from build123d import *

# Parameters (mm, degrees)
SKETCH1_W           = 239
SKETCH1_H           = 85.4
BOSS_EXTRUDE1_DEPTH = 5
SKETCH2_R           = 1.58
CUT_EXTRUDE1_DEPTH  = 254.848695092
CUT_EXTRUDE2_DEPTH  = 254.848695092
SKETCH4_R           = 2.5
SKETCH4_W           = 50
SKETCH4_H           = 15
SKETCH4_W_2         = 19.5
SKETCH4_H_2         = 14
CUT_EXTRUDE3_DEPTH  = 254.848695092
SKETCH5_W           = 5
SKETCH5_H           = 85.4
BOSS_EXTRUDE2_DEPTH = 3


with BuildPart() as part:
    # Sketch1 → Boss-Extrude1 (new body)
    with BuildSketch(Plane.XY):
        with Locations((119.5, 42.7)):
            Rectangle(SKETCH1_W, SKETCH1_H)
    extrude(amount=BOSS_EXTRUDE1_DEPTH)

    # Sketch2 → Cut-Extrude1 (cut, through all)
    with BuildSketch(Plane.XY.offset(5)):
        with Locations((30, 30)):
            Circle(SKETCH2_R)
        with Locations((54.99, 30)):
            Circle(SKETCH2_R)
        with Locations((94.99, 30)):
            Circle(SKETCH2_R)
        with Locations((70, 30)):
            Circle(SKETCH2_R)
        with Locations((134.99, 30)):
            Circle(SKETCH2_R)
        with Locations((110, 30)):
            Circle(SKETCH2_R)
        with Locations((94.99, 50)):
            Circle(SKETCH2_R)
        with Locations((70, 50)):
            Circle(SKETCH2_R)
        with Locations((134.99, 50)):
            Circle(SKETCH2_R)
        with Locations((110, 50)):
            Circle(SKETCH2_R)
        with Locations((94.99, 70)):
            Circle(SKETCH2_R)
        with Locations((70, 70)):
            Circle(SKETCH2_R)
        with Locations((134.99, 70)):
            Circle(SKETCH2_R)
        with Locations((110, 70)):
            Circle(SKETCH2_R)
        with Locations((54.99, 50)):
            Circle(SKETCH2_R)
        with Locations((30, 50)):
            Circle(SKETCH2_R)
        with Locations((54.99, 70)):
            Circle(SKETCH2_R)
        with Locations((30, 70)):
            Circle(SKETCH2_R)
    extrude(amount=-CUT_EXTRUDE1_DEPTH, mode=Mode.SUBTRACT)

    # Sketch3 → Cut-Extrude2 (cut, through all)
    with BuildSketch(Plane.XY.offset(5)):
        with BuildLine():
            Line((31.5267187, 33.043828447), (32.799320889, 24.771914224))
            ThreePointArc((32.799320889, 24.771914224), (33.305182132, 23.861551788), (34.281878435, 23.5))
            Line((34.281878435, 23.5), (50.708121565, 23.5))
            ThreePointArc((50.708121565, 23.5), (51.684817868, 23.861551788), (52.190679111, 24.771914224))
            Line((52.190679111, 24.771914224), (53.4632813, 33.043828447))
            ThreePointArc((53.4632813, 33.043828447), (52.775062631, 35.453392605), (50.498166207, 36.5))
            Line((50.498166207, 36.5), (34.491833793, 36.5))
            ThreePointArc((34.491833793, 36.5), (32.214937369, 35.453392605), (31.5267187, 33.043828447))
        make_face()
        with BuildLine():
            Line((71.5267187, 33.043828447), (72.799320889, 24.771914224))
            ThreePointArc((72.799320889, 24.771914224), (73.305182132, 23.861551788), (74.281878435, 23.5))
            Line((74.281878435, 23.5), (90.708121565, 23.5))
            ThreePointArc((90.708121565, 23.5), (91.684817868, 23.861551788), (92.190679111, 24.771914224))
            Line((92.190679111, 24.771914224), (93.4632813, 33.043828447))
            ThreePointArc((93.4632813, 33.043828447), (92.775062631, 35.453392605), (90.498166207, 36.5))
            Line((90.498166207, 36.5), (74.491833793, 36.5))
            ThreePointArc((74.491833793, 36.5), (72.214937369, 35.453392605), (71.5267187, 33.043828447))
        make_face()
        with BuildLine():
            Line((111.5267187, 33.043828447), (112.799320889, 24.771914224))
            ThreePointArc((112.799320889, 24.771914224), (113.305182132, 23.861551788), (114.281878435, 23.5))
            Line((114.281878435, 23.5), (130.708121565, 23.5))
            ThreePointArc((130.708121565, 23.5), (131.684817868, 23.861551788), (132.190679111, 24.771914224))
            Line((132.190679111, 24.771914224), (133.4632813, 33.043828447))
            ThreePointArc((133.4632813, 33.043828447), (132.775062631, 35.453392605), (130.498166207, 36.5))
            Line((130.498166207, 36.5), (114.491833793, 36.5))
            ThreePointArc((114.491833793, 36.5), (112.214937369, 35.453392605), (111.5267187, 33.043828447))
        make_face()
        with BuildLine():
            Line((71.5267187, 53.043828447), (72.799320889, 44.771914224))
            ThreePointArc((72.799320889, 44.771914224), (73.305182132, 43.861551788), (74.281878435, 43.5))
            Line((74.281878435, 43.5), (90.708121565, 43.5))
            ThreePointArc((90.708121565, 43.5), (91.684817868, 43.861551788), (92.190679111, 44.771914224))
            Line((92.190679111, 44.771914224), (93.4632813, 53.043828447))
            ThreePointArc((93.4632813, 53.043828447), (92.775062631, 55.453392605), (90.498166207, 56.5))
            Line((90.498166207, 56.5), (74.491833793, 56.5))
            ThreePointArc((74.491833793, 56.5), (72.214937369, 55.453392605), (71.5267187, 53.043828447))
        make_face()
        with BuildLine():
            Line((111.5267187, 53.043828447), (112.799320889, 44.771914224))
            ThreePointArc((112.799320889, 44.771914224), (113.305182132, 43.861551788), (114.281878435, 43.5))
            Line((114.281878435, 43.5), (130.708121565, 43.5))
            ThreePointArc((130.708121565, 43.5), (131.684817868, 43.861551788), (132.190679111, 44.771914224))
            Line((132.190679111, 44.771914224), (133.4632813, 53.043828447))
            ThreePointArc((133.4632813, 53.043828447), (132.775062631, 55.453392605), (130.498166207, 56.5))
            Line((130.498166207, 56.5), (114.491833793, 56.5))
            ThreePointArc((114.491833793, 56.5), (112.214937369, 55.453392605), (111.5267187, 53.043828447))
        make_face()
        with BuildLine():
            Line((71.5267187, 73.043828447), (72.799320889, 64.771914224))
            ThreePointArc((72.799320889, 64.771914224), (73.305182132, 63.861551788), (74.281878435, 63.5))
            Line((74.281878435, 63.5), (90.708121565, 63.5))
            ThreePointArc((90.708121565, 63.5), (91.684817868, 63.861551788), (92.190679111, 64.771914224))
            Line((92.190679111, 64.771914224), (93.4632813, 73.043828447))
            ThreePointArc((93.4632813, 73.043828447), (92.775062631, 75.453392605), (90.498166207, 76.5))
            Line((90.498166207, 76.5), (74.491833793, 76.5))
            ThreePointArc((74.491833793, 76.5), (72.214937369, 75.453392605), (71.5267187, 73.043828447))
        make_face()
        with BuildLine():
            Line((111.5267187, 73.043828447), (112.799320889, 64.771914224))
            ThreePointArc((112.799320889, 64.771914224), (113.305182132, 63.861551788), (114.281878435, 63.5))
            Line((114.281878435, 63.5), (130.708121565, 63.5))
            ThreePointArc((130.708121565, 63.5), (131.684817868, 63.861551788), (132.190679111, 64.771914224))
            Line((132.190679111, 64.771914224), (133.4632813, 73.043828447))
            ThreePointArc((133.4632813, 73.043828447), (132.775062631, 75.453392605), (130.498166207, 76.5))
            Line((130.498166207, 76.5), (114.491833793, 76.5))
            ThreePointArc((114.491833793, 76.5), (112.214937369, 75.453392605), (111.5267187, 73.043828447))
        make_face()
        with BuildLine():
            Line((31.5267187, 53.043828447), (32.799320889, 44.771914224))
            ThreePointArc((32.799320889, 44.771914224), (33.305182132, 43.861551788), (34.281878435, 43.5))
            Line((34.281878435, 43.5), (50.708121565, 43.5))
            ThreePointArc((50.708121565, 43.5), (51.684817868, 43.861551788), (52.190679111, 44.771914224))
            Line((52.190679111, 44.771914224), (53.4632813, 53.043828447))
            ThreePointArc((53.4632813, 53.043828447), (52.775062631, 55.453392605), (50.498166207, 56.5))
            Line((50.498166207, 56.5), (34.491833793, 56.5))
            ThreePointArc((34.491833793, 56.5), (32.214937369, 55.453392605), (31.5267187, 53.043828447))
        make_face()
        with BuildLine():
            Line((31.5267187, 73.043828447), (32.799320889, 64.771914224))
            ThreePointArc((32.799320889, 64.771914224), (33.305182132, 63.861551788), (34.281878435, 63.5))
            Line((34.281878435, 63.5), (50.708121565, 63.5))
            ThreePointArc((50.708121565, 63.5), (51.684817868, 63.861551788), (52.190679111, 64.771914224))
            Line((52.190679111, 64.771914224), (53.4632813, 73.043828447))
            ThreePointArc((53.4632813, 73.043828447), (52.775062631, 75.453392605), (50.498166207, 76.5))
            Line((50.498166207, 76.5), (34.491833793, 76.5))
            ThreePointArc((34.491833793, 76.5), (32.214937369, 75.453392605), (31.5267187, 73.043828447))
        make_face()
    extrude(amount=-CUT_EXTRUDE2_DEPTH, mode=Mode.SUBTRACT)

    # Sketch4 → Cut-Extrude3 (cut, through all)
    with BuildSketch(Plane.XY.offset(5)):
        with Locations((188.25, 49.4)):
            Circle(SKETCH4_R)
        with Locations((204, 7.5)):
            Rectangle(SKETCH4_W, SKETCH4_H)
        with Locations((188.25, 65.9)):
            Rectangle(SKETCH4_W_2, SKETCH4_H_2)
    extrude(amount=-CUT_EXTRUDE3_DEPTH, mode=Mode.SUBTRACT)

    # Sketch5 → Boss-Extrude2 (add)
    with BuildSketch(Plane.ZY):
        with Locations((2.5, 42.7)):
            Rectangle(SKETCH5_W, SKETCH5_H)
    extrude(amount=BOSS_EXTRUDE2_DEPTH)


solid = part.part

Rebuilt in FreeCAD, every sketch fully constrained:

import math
import FreeCAD as App
import Part
import Sketcher

V = App.Vector
Q = App.Units.Quantity


def add_polygon(sketch, points):
    """Adds a closed chain of lines whose ends are joined by coincident constraints."""
    first, n = sketch.GeometryCount, len(points)
    for a, b in zip(points, points[1:] + points[:1]):
        sketch.addGeometry(Part.LineSegment(App.Vector(*a, 0), App.Vector(*b, 0)), False)
    for i in range(n):
        sketch.addConstraint(Sketcher.Constraint("Coincident", first + i, 2, first + (i + 1) % n, 1))

doc = App.newDocument("Part")
body = doc.addObject("PartDesign::Body", "Body")

# Sketch on XY plane
sketch1 = body.newObject("Sketcher::SketchObject", "Sketch")
sketch1.AttachmentSupport = (doc.getObject("XY_Plane"), [""])
sketch1.MapMode = "FlatFace"
add_polygon(sketch1, [(0, 85), (0, 0), (239, 0), (239, 85)])  # lines 0-3
sketch1.addConstraint([
    Sketcher.Constraint("Vertical", 0),
    Sketcher.Constraint("Horizontal", 1),
    Sketcher.Constraint("Vertical", 2),
    Sketcher.Constraint("Horizontal", 3),
    Sketcher.Constraint("Coincident", 0, 2, -1, 1),
    Sketcher.Constraint("DistanceX", 1, 1, 1, 2, Q("239 mm")),
    Sketcher.Constraint("DistanceY", 0, 2, 0, 1, Q("85.4 mm")),
])
pad1 = body.newObject("PartDesign::Pad", "Pad")
pad1.Profile = sketch1
pad1.Length = 5

# Sketch on XY plane
sketch2 = body.newObject("Sketcher::SketchObject", "Sketch001")
sketch2.AttachmentSupport = (doc.getObject("XY_Plane"), [""])
sketch2.MapMode = "FlatFace"
sketch2.AttachmentOffset = App.Placement(V(0, 0, 5), App.Rotation())
sketch2.addGeometry([
    Part.Circle(V(30, 30, 0), V(0, 0, 1), 1.6),  # 0
    Part.Circle(V(55, 30, 0), V(0, 0, 1), 1.6),  # 1
    Part.Circle(V(95, 30, 0), V(0, 0, 1), 1.6),  # 2
    Part.Circle(V(70, 30, 0), V(0, 0, 1), 1.6),  # 3
    Part.Circle(V(135, 30, 0), V(0, 0, 1), 1.6),  # 4
    Part.Circle(V(110, 30, 0), V(0, 0, 1), 1.6),  # 5
    Part.Circle(V(95, 50, 0), V(0, 0, 1), 1.6),  # 6
    Part.Circle(V(70, 50, 0), V(0, 0, 1), 1.6),  # 7
    Part.Circle(V(135, 50, 0), V(0, 0, 1), 1.6),  # 8
    Part.Circle(V(110, 50, 0), V(0, 0, 1), 1.6),  # 9
    Part.Circle(V(95, 70, 0), V(0, 0, 1), 1.6),  # 10
    Part.Circle(V(70, 70, 0), V(0, 0, 1), 1.6),  # 11
    Part.Circle(V(135, 70, 0), V(0, 0, 1), 1.6),  # 12
    Part.Circle(V(110, 70, 0), V(0, 0, 1), 1.6),  # 13
    Part.Circle(V(55, 50, 0), V(0, 0, 1), 1.6),  # 14
    Part.Circle(V(30, 50, 0), V(0, 0, 1), 1.6),  # 15
    Part.Circle(V(55, 70, 0), V(0, 0, 1), 1.6),  # 16
    Part.Circle(V(30, 70, 0), V(0, 0, 1), 1.6),  # 17
], False)
sketch2.addConstraint([
    Sketcher.Constraint("Equal", 0, 1),
    Sketcher.Constraint("Equal", 1, 2),
    Sketcher.Constraint("Equal", 2, 3),
    Sketcher.Constraint("Equal", 3, 4),
    Sketcher.Constraint("Equal", 4, 5),
    Sketcher.Constraint("Equal", 5, 6),
    Sketcher.Constraint("Equal", 6, 7),
    Sketcher.Constraint("Equal", 7, 8),
    Sketcher.Constraint("Equal", 8, 9),
    Sketcher.Constraint("Equal", 9, 10),
    Sketcher.Constraint("Equal", 10, 11),
    Sketcher.Constraint("Equal", 11, 12),
    Sketcher.Constraint("Equal", 12, 13),
    Sketcher.Constraint("Equal", 13, 14),
    Sketcher.Constraint("Equal", 14, 15),
    Sketcher.Constraint("Equal", 15, 16),
    Sketcher.Constraint("Equal", 16, 17),
    Sketcher.Constraint("Horizontal", 0, 3, 1, 3),
    Sketcher.Constraint("Horizontal", 1, 3, 2, 3),
    Sketcher.Constraint("Horizontal", 2, 3, 3, 3),
    Sketcher.Constraint("Horizontal", 3, 3, 4, 3),
    Sketcher.Constraint("Horizontal", 4, 3, 5, 3),
    Sketcher.Constraint("Horizontal", 6, 3, 7, 3),
    Sketcher.Constraint("Horizontal", 7, 3, 8, 3),
    Sketcher.Constraint("Horizontal", 8, 3, 9, 3),
    Sketcher.Constraint("Horizontal", 10, 3, 11, 3),
    Sketcher.Constraint("Horizontal", 11, 3, 12, 3),
    Sketcher.Constraint("Horizontal", 12, 3, 13, 3),
    Sketcher.Constraint("Horizontal", 9, 3, 14, 3),
    Sketcher.Constraint("Horizontal", 14, 3, 15, 3),
    Sketcher.Constraint("Horizontal", 13, 3, 16, 3),
    Sketcher.Constraint("Horizontal", 16, 3, 17, 3),
    Sketcher.Constraint("Vertical", 2, 3, 6, 3),
    Sketcher.Constraint("Vertical", 3, 3, 7, 3),
    Sketcher.Constraint("Vertical", 4, 3, 8, 3),
    Sketcher.Constraint("Vertical", 5, 3, 9, 3),
    Sketcher.Constraint("Vertical", 6, 3, 10, 3),
    Sketcher.Constraint("Vertical", 7, 3, 11, 3),
    Sketcher.Constraint("Vertical", 8, 3, 12, 3),
    Sketcher.Constraint("Vertical", 9, 3, 13, 3),
    Sketcher.Constraint("Vertical", 1, 3, 14, 3),
    Sketcher.Constraint("Vertical", 0, 3, 15, 3),
    Sketcher.Constraint("Vertical", 14, 3, 16, 3),
    Sketcher.Constraint("Vertical", 15, 3, 17, 3),
    Sketcher.Constraint("Diameter", 0, Q("3.16 mm")),
    Sketcher.Constraint("DistanceX", -1, 1, 0, 3, Q("30 mm")),
    Sketcher.Constraint("DistanceY", -1, 1, 0, 3, Q("30 mm")),
    Sketcher.Constraint("DistanceX", -1, 1, 3, 3, Q("70 mm")),
    Sketcher.Constraint("DistanceX", -1, 1, 5, 3, Q("110 mm")),
    Sketcher.Constraint("DistanceY", -1, 1, 6, 3, Q("50 mm")),
    Sketcher.Constraint("DistanceY", -1, 1, 10, 3, Q("70 mm")),
    Sketcher.Constraint("DistanceX", 1, 3, 2, 3, Q("40 mm")),
    Sketcher.Constraint("DistanceX", 2, 3, 4, 3, Q("40 mm")),
    Sketcher.Constraint("DistanceX", -1, 1, 1, 3, Q("54.99 mm")),
])
pocket1 = body.newObject("PartDesign::Pocket", "Pocket")
pocket1.Profile = sketch2
pocket1.Type = "ThroughAll"

# Sketch on XY plane
sketch3 = body.newObject("Sketcher::SketchObject", "Sketch002")
sketch3.AttachmentSupport = (doc.getObject("XY_Plane"), [""])
sketch3.MapMode = "FlatFace"
sketch3.AttachmentOffset = App.Placement(V(0, 0, 5), App.Rotation())
sketch3.addGeometry([
    Part.LineSegment(V(31.5, 33, 0), V(32.8, 24.8, 0)),  # 0
    Part.ArcOfCircle(Part.Circle(V(34.3, 25, 0), V(0, 0, 1), 1.5), math.radians(-171), math.radians(-90)),  # 1
    Part.LineSegment(V(34.3, 23.5, 0), V(50.7, 23.5, 0)),  # 2
    Part.ArcOfCircle(Part.Circle(V(50.7, 25, 0), V(0, 0, 1), 1.5), math.radians(-90), math.radians(-9)),  # 3
    Part.LineSegment(V(52.2, 24.8, 0), V(53.5, 33, 0)),  # 4
    Part.ArcOfCircle(Part.Circle(V(50.5, 33.5, 0), V(0, 0, 1), 3), math.radians(-9), math.radians(90)),  # 5
    Part.LineSegment(V(50.5, 36.5, 0), V(34.5, 36.5, 0)),  # 6
    Part.ArcOfCircle(Part.Circle(V(34.5, 33.5, 0), V(0, 0, 1), 3), math.radians(90), math.radians(189)),  # 7
    Part.LineSegment(V(71.5, 33, 0), V(72.8, 24.8, 0)),  # 8
    Part.ArcOfCircle(Part.Circle(V(74.3, 25, 0), V(0, 0, 1), 1.5), math.radians(-171), math.radians(-90)),  # 9
    Part.LineSegment(V(74.3, 23.5, 0), V(90.7, 23.5, 0)),  # 10
    Part.ArcOfCircle(Part.Circle(V(90.7, 25, 0), V(0, 0, 1), 1.5), math.radians(-90), math.radians(-9)),  # 11
    Part.LineSegment(V(92.2, 24.8, 0), V(93.5, 33, 0)),  # 12
    Part.ArcOfCircle(Part.Circle(V(90.5, 33.5, 0), V(0, 0, 1), 3), math.radians(-9), math.radians(90)),  # 13
    Part.LineSegment(V(90.5, 36.5, 0), V(74.5, 36.5, 0)),  # 14
    Part.ArcOfCircle(Part.Circle(V(74.5, 33.5, 0), V(0, 0, 1), 3), math.radians(90), math.radians(189)),  # 15
    Part.LineSegment(V(111.5, 33, 0), V(112.8, 24.8, 0)),  # 16
    Part.ArcOfCircle(Part.Circle(V(114.3, 25, 0), V(0, 0, 1), 1.5), math.radians(-171), math.radians(-90)),  # 17
    Part.LineSegment(V(114.3, 23.5, 0), V(130.7, 23.5, 0)),  # 18
    Part.ArcOfCircle(Part.Circle(V(130.7, 25, 0), V(0, 0, 1), 1.5), math.radians(-90), math.radians(-9)),  # 19
    Part.LineSegment(V(132.2, 24.8, 0), V(133.5, 33, 0)),  # 20
    Part.ArcOfCircle(Part.Circle(V(130.5, 33.5, 0), V(0, 0, 1), 3), math.radians(-9), math.radians(90)),  # 21
    Part.LineSegment(V(130.5, 36.5, 0), V(114.5, 36.5, 0)),  # 22
    Part.ArcOfCircle(Part.Circle(V(114.5, 33.5, 0), V(0, 0, 1), 3), math.radians(90), math.radians(189)),  # 23
    Part.LineSegment(V(71.5, 53, 0), V(72.8, 44.8, 0)),  # 24
    Part.ArcOfCircle(Part.Circle(V(74.3, 45, 0), V(0, 0, 1), 1.5), math.radians(-171), math.radians(-90)),  # 25
    Part.LineSegment(V(74.3, 43.5, 0), V(90.7, 43.5, 0)),  # 26
    Part.ArcOfCircle(Part.Circle(V(90.7, 45, 0), V(0, 0, 1), 1.5), math.radians(-90), math.radians(-9)),  # 27
    Part.LineSegment(V(92.2, 44.8, 0), V(93.5, 53, 0)),  # 28
    Part.ArcOfCircle(Part.Circle(V(90.5, 53.5, 0), V(0, 0, 1), 3), math.radians(-9), math.radians(90)),  # 29
    Part.LineSegment(V(90.5, 56.5, 0), V(74.5, 56.5, 0)),  # 30
    Part.ArcOfCircle(Part.Circle(V(74.5, 53.5, 0), V(0, 0, 1), 3), math.radians(90), math.radians(189)),  # 31
    Part.LineSegment(V(111.5, 53, 0), V(112.8, 44.8, 0)),  # 32
    Part.ArcOfCircle(Part.Circle(V(114.3, 45, 0), V(0, 0, 1), 1.5), math.radians(-171), math.radians(-90)),  # 33
    Part.LineSegment(V(114.3, 43.5, 0), V(130.7, 43.5, 0)),  # 34
    Part.ArcOfCircle(Part.Circle(V(130.7, 45, 0), V(0, 0, 1), 1.5), math.radians(-90), math.radians(-9)),  # 35
    Part.LineSegment(V(132.2, 44.8, 0), V(133.5, 53, 0)),  # 36
    Part.ArcOfCircle(Part.Circle(V(130.5, 53.5, 0), V(0, 0, 1), 3), math.radians(-9), math.radians(90)),  # 37
    Part.LineSegment(V(130.5, 56.5, 0), V(114.5, 56.5, 0)),  # 38
    Part.ArcOfCircle(Part.Circle(V(114.5, 53.5, 0), V(0, 0, 1), 3), math.radians(90), math.radians(189)),  # 39
    Part.LineSegment(V(71.5, 73, 0), V(72.8, 64.8, 0)),  # 40
    Part.ArcOfCircle(Part.Circle(V(74.3, 65, 0), V(0, 0, 1), 1.5), math.radians(-171), math.radians(-90)),  # 41
    Part.LineSegment(V(74.3, 63.5, 0), V(90.7, 63.5, 0)),  # 42
    Part.ArcOfCircle(Part.Circle(V(90.7, 65, 0), V(0, 0, 1), 1.5), math.radians(-90), math.radians(-9)),  # 43
    Part.LineSegment(V(92.2, 64.8, 0), V(93.5, 73, 0)),  # 44
    Part.ArcOfCircle(Part.Circle(V(90.5, 73.5, 0), V(0, 0, 1), 3), math.radians(-9), math.radians(90)),  # 45
    Part.LineSegment(V(90.5, 76.5, 0), V(74.5, 76.5, 0)),  # 46
    Part.ArcOfCircle(Part.Circle(V(74.5, 73.5, 0), V(0, 0, 1), 3), math.radians(90), math.radians(189)),  # 47
    Part.LineSegment(V(111.5, 73, 0), V(112.8, 64.8, 0)),  # 48
    Part.ArcOfCircle(Part.Circle(V(114.3, 65, 0), V(0, 0, 1), 1.5), math.radians(-171), math.radians(-90)),  # 49
    Part.LineSegment(V(114.3, 63.5, 0), V(130.7, 63.5, 0)),  # 50
    Part.ArcOfCircle(Part.Circle(V(130.7, 65, 0), V(0, 0, 1), 1.5), math.radians(-90), math.radians(-9)),  # 51
    Part.LineSegment(V(132.2, 64.8, 0), V(133.5, 73, 0)),  # 52
    Part.ArcOfCircle(Part.Circle(V(130.5, 73.5, 0), V(0, 0, 1), 3), math.radians(-9), math.radians(90)),  # 53
    Part.LineSegment(V(130.5, 76.5, 0), V(114.5, 76.5, 0)),  # 54
    Part.ArcOfCircle(Part.Circle(V(114.5, 73.5, 0), V(0, 0, 1), 3), math.radians(90), math.radians(189)),  # 55
    Part.LineSegment(V(31.5, 53, 0), V(32.8, 44.8, 0)),  # 56
    Part.ArcOfCircle(Part.Circle(V(34.3, 45, 0), V(0, 0, 1), 1.5), math.radians(-171), math.radians(-90)),  # 57
    Part.LineSegment(V(34.3, 43.5, 0), V(50.7, 43.5, 0)),  # 58
    Part.ArcOfCircle(Part.Circle(V(50.7, 45, 0), V(0, 0, 1), 1.5), math.radians(-90), math.radians(-9)),  # 59
    Part.LineSegment(V(52.2, 44.8, 0), V(53.5, 53, 0)),  # 60
    Part.ArcOfCircle(Part.Circle(V(50.5, 53.5, 0), V(0, 0, 1), 3), math.radians(-9), math.radians(90)),  # 61
    Part.LineSegment(V(50.5, 56.5, 0), V(34.5, 56.5, 0)),  # 62
    Part.ArcOfCircle(Part.Circle(V(34.5, 53.5, 0), V(0, 0, 1), 3), math.radians(90), math.radians(189)),  # 63
    Part.LineSegment(V(31.5, 73, 0), V(32.8, 64.8, 0)),  # 64
    Part.ArcOfCircle(Part.Circle(V(34.3, 65, 0), V(0, 0, 1), 1.5), math.radians(-171), math.radians(-90)),  # 65
    Part.LineSegment(V(34.3, 63.5, 0), V(50.7, 63.5, 0)),  # 66
    Part.ArcOfCircle(Part.Circle(V(50.7, 65, 0), V(0, 0, 1), 1.5), math.radians(-90), math.radians(-9)),  # 67
    Part.LineSegment(V(52.2, 64.8, 0), V(53.5, 73, 0)),  # 68
    Part.ArcOfCircle(Part.Circle(V(50.5, 73.5, 0), V(0, 0, 1), 3), math.radians(-9), math.radians(90)),  # 69
    Part.LineSegment(V(50.5, 76.5, 0), V(34.5, 76.5, 0)),  # 70
    Part.ArcOfCircle(Part.Circle(V(34.5, 73.5, 0), V(0, 0, 1), 3), math.radians(90), math.radians(189)),  # 71
], False)
sketch3.addConstraint([
    Sketcher.Constraint("Tangent", 0, 2, 1, 1),
    Sketcher.Constraint("Tangent", 1, 2, 2, 1),
    Sketcher.Constraint("Tangent", 2, 2, 3, 1),
    Sketcher.Constraint("Tangent", 3, 2, 4, 1),
    Sketcher.Constraint("Tangent", 4, 2, 5, 1),
    Sketcher.Constraint("Tangent", 5, 2, 6, 1),
    Sketcher.Constraint("Tangent", 6, 2, 7, 1),
    Sketcher.Constraint("Tangent", 7, 2, 0, 1),
    Sketcher.Constraint("Tangent", 8, 2, 9, 1),
    Sketcher.Constraint("Tangent", 9, 2, 10, 1),
    Sketcher.Constraint("Tangent", 10, 2, 11, 1),
    Sketcher.Constraint("Tangent", 11, 2, 12, 1),
    Sketcher.Constraint("Tangent", 12, 2, 13, 1),
    Sketcher.Constraint("Tangent", 13, 2, 14, 1),
    Sketcher.Constraint("Tangent", 14, 2, 15, 1),
    Sketcher.Constraint("Tangent", 15, 2, 8, 1),
    Sketcher.Constraint("Tangent", 16, 2, 17, 1),
    Sketcher.Constraint("Tangent", 17, 2, 18, 1),
    Sketcher.Constraint("Tangent", 18, 2, 19, 1),
    Sketcher.Constraint("Tangent", 19, 2, 20, 1),
    Sketcher.Constraint("Tangent", 20, 2, 21, 1),
    Sketcher.Constraint("Tangent", 21, 2, 22, 1),
    Sketcher.Constraint("Tangent", 22, 2, 23, 1),
    Sketcher.Constraint("Tangent", 23, 2, 16, 1),
    Sketcher.Constraint("Tangent", 24, 2, 25, 1),
    Sketcher.Constraint("Tangent", 25, 2, 26, 1),
    Sketcher.Constraint("Tangent", 26, 2, 27, 1),
    Sketcher.Constraint("Tangent", 27, 2, 28, 1),
    Sketcher.Constraint("Tangent", 28, 2, 29, 1),
    Sketcher.Constraint("Tangent", 29, 2, 30, 1),
    Sketcher.Constraint("Tangent", 30, 2, 31, 1),
    Sketcher.Constraint("Tangent", 31, 2, 24, 1),
    Sketcher.Constraint("Tangent", 32, 2, 33, 1),
    Sketcher.Constraint("Tangent", 33, 2, 34, 1),
    Sketcher.Constraint("Tangent", 34, 2, 35, 1),
    Sketcher.Constraint("Tangent", 35, 2, 36, 1),
    Sketcher.Constraint("Tangent", 36, 2, 37, 1),
    Sketcher.Constraint("Tangent", 37, 2, 38, 1),
    Sketcher.Constraint("Tangent", 38, 2, 39, 1),
    Sketcher.Constraint("Tangent", 39, 2, 32, 1),
    Sketcher.Constraint("Tangent", 40, 2, 41, 1),
    Sketcher.Constraint("Tangent", 41, 2, 42, 1),
    Sketcher.Constraint("Tangent", 42, 2, 43, 1),
    Sketcher.Constraint("Tangent", 43, 2, 44, 1),
    Sketcher.Constraint("Tangent", 44, 2, 45, 1),
    Sketcher.Constraint("Tangent", 45, 2, 46, 1),
    Sketcher.Constraint("Tangent", 46, 2, 47, 1),
    Sketcher.Constraint("Tangent", 47, 2, 40, 1),
    Sketcher.Constraint("Tangent", 48, 2, 49, 1),
    Sketcher.Constraint("Tangent", 49, 2, 50, 1),
    Sketcher.Constraint("Tangent", 50, 2, 51, 1),
    Sketcher.Constraint("Tangent", 51, 2, 52, 1),
    Sketcher.Constraint("Tangent", 52, 2, 53, 1),
    Sketcher.Constraint("Tangent", 53, 2, 54, 1),
    Sketcher.Constraint("Tangent", 54, 2, 55, 1),
    Sketcher.Constraint("Tangent", 55, 2, 48, 1),
    Sketcher.Constraint("Tangent", 56, 2, 57, 1),
    Sketcher.Constraint("Tangent", 57, 2, 58, 1),
    Sketcher.Constraint("Tangent", 58, 2, 59, 1),
    Sketcher.Constraint("Tangent", 59, 2, 60, 1),
    Sketcher.Constraint("Tangent", 60, 2, 61, 1),
    Sketcher.Constraint("Tangent", 61, 2, 62, 1),
    Sketcher.Constraint("Tangent", 62, 2, 63, 1),
    Sketcher.Constraint("Tangent", 63, 2, 56, 1),
    Sketcher.Constraint("Tangent", 64, 2, 65, 1),
    Sketcher.Constraint("Tangent", 65, 2, 66, 1),
    Sketcher.Constraint("Tangent", 66, 2, 67, 1),
    Sketcher.Constraint("Tangent", 67, 2, 68, 1),
    Sketcher.Constraint("Tangent", 68, 2, 69, 1),
    Sketcher.Constraint("Tangent", 69, 2, 70, 1),
    Sketcher.Constraint("Tangent", 70, 2, 71, 1),
    Sketcher.Constraint("Tangent", 71, 2, 64, 1),
    Sketcher.Constraint("Horizontal", 2),
    Sketcher.Constraint("Horizontal", 6),
    Sketcher.Constraint("Horizontal", 10),
    Sketcher.Constraint("Horizontal", 14),
    Sketcher.Constraint("Horizontal", 18),
    Sketcher.Constraint("Horizontal", 22),
    Sketcher.Constraint("Horizontal", 26),
    Sketcher.Constraint("Horizontal", 30),
    Sketcher.Constraint("Horizontal", 34),
    Sketcher.Constraint("Horizontal", 38),
    Sketcher.Constraint("Horizontal", 42),
    Sketcher.Constraint("Horizontal", 46),
    Sketcher.Constraint("Horizontal", 50),
    Sketcher.Constraint("Horizontal", 54),
    Sketcher.Constraint("Horizontal", 58),
    Sketcher.Constraint("Horizontal", 62),
    Sketcher.Constraint("Horizontal", 66),
    Sketcher.Constraint("Horizontal", 70),
    Sketcher.Constraint("Equal", 1, 3),
    Sketcher.Constraint("Equal", 5, 7),
    Sketcher.Constraint("Equal", 3, 9),
    Sketcher.Constraint("Equal", 9, 11),
    Sketcher.Constraint("Equal", 7, 13),
    Sketcher.Constraint("Equal", 13, 15),
    Sketcher.Constraint("Equal", 11, 17),
    Sketcher.Constraint("Equal", 17, 19),
    Sketcher.Constraint("Equal", 15, 21),
    Sketcher.Constraint("Equal", 21, 23),
    Sketcher.Constraint("Equal", 19, 25),
    Sketcher.Constraint("Equal", 25, 27),
    Sketcher.Constraint("Equal", 23, 29),
    Sketcher.Constraint("Equal", 29, 31),
    Sketcher.Constraint("Equal", 27, 33),
    Sketcher.Constraint("Equal", 33, 35),
    Sketcher.Constraint("Equal", 31, 37),
    Sketcher.Constraint("Equal", 37, 39),
    Sketcher.Constraint("Equal", 35, 41),
    Sketcher.Constraint("Equal", 41, 43),
    Sketcher.Constraint("Equal", 39, 45),
    Sketcher.Constraint("Equal", 45, 47),
    Sketcher.Constraint("Equal", 43, 49),
    Sketcher.Constraint("Equal", 49, 51),
    Sketcher.Constraint("Equal", 47, 53),
    Sketcher.Constraint("Equal", 53, 55),
    Sketcher.Constraint("Equal", 51, 57),
    Sketcher.Constraint("Equal", 57, 59),
    Sketcher.Constraint("Equal", 55, 61),
    Sketcher.Constraint("Equal", 61, 63),
    Sketcher.Constraint("Equal", 59, 65),
    Sketcher.Constraint("Equal", 65, 67),
    Sketcher.Constraint("Equal", 63, 69),
    Sketcher.Constraint("Equal", 69, 71),
    Sketcher.Constraint("Parallel", 0, 8),
    Sketcher.Constraint("Parallel", 4, 12),
    Sketcher.Constraint("Parallel", 8, 16),
    Sketcher.Constraint("Parallel", 12, 20),
    Sketcher.Constraint("Parallel", 16, 24),
    Sketcher.Constraint("Parallel", 20, 28),
    Sketcher.Constraint("Parallel", 24, 32),
    Sketcher.Constraint("Parallel", 28, 36),
    Sketcher.Constraint("Parallel", 32, 40),
    Sketcher.Constraint("Parallel", 36, 44),
    Sketcher.Constraint("Parallel", 40, 48),
    Sketcher.Constraint("Parallel", 44, 52),
    Sketcher.Constraint("Parallel", 48, 56),
    Sketcher.Constraint("Parallel", 52, 60),
    Sketcher.Constraint("Parallel", 56, 64),
    Sketcher.Constraint("Parallel", 60, 68),
    Sketcher.Constraint("Horizontal", 3, 3, 9, 3),
    Sketcher.Constraint("Horizontal", 7, 3, 13, 3),
    Sketcher.Constraint("Horizontal", 11, 3, 17, 3),
    Sketcher.Constraint("Horizontal", 15, 3, 21, 3),
    Sketcher.Constraint("Horizontal", 27, 3, 33, 3),
    Sketcher.Constraint("Horizontal", 31, 3, 37, 3),
    Sketcher.Constraint("Horizontal", 43, 3, 49, 3),
    Sketcher.Constraint("Horizontal", 47, 3, 53, 3),
    Sketcher.Constraint("Horizontal", 35, 3, 57, 3),
    Sketcher.Constraint("Horizontal", 39, 3, 61, 3),
    Sketcher.Constraint("Horizontal", 51, 3, 65, 3),
    Sketcher.Constraint("Horizontal", 55, 3, 69, 3),
    Sketcher.Constraint("Horizontal", 0, 2, 3, 2),
    Sketcher.Constraint("Vertical", 9, 3, 25, 3),
    Sketcher.Constraint("Vertical", 11, 3, 27, 3),
    Sketcher.Constraint("Vertical", 13, 3, 29, 3),
    Sketcher.Constraint("Vertical", 17, 3, 33, 3),
    Sketcher.Constraint("Vertical", 19, 3, 35, 3),
    Sketcher.Constraint("Vertical", 25, 3, 41, 3),
    Sketcher.Constraint("Vertical", 27, 3, 43, 3),
    Sketcher.Constraint("Vertical", 29, 3, 45, 3),
    Sketcher.Constraint("Vertical", 33, 3, 49, 3),
    Sketcher.Constraint("Vertical", 35, 3, 51, 3),
    Sketcher.Constraint("Vertical", 1, 3, 57, 3),
    Sketcher.Constraint("Vertical", 3, 3, 59, 3),
    Sketcher.Constraint("Vertical", 57, 3, 65, 3),
    Sketcher.Constraint("Vertical", 59, 3, 67, 3),
    Sketcher.Constraint("Equal", 2, 10),
    Sketcher.Constraint("Equal", 10, 18),
    Sketcher.Constraint("Radius", 5, Q("3 mm")),
    Sketcher.Constraint("Radius", 1, Q("1.5 mm")),
    Sketcher.Constraint("DistanceY", -1, 1, 1, 3, Q("25 mm")),
    Sketcher.Constraint("DistanceY", -1, 1, 25, 3, Q("45 mm")),
    Sketcher.Constraint("DistanceY", -1, 1, 41, 3, Q("65 mm")),
    Sketcher.Constraint("DistanceY", -1, 1, 5, 3, Q("33.5 mm")),
    Sketcher.Constraint("DistanceX", 2, 1, 2, 2, Q("16.426243 mm")),
    Sketcher.Constraint("DistanceX", 6, 2, 6, 1, Q("16.006332 mm")),
    Sketcher.Constraint("DistanceX", -1, 1, 1, 3, Q("34.281878 mm")),
    Sketcher.Constraint("DistanceX", -1, 1, 9, 3, Q("74.281878 mm")),
    Sketcher.Constraint("DistanceX", -1, 1, 17, 3, Q("114.281878 mm")),
])
pocket2 = body.newObject("PartDesign::Pocket", "Pocket001")
pocket2.Profile = sketch3
pocket2.Type = "ThroughAll"

# Sketch on XY plane
sketch4 = body.newObject("Sketcher::SketchObject", "Sketch003")
sketch4.AttachmentSupport = (doc.getObject("XY_Plane"), [""])
sketch4.MapMode = "FlatFace"
sketch4.AttachmentOffset = App.Placement(V(0, 0, 5), App.Rotation())
sketch4.addGeometry(Part.Circle(V(188.2, 49.4, 0), V(0, 0, 1), 2.5), False)  # 0
add_polygon(sketch4, [(179, 15), (179, 0), (229, 0), (229, 15)])  # lines 1-4
add_polygon(sketch4, [(178.5, 72.9), (178.5, 58.9), (198, 58.9), (198, 72.9)])  # lines 5-8
sketch4.addConstraint([
    Sketcher.Constraint("Vertical", 1),
    Sketcher.Constraint("Horizontal", 2),
    Sketcher.Constraint("Vertical", 3),
    Sketcher.Constraint("Horizontal", 4),
    Sketcher.Constraint("Vertical", 5),
    Sketcher.Constraint("Horizontal", 6),
    Sketcher.Constraint("Vertical", 7),
    Sketcher.Constraint("Horizontal", 8),
    Sketcher.Constraint("PointOnObject", 1, 2, -1),
    Sketcher.Constraint("Diameter", 0, Q("5 mm")),
    Sketcher.Constraint("DistanceX", 2, 1, 2, 2, Q("50 mm")),
    Sketcher.Constraint("DistanceY", 1, 2, 1, 1, Q("15 mm")),
    Sketcher.Constraint("DistanceY", 5, 2, 5, 1, Q("14 mm")),
    Sketcher.Constraint("DistanceX", 6, 1, 6, 2, Q("19.5 mm")),
    Sketcher.Constraint("DistanceX", -1, 1, 1, 2, Q("179 mm")),
    Sketcher.Constraint("DistanceX", -1, 1, 6, 2, Q("198 mm")),
    Sketcher.Constraint("DistanceY", -1, 1, 0, 3, Q("49.4 mm")),
    Sketcher.Constraint("DistanceY", -1, 1, 5, 2, Q("58.9 mm")),
    Sketcher.Constraint("DistanceX", -1, 1, 0, 3, Q("188.25 mm")),
])
pocket3 = body.newObject("PartDesign::Pocket", "Pocket002")
pocket3.Profile = sketch4
pocket3.Type = "ThroughAll"

# Sketch on YZ plane
sketch5 = body.newObject("Sketcher::SketchObject", "Sketch004")
sketch5.AttachmentSupport = (doc.getObject("YZ_Plane"), [""])
sketch5.MapMode = "FlatFace"
add_polygon(sketch5, [(85, 0), (0, 0), (0, 5), (85, 5)])  # lines 0-3
sketch5.addConstraint([
    Sketcher.Constraint("Horizontal", 0),
    Sketcher.Constraint("Vertical", 1),
    Sketcher.Constraint("Horizontal", 2),
    Sketcher.Constraint("Vertical", 3),
    Sketcher.Constraint("Coincident", 0, 2, -1, 1),
    Sketcher.Constraint("DistanceY", 1, 1, 1, 2, Q("5 mm")),
    Sketcher.Constraint("DistanceX", 0, 2, 0, 1, Q("85.4 mm")),
])
pad2 = body.newObject("PartDesign::Pad", "Pad001")
pad2.Profile = sketch5
pad2.Length = 3
pad2.Reversed = True

doc.recompute()
